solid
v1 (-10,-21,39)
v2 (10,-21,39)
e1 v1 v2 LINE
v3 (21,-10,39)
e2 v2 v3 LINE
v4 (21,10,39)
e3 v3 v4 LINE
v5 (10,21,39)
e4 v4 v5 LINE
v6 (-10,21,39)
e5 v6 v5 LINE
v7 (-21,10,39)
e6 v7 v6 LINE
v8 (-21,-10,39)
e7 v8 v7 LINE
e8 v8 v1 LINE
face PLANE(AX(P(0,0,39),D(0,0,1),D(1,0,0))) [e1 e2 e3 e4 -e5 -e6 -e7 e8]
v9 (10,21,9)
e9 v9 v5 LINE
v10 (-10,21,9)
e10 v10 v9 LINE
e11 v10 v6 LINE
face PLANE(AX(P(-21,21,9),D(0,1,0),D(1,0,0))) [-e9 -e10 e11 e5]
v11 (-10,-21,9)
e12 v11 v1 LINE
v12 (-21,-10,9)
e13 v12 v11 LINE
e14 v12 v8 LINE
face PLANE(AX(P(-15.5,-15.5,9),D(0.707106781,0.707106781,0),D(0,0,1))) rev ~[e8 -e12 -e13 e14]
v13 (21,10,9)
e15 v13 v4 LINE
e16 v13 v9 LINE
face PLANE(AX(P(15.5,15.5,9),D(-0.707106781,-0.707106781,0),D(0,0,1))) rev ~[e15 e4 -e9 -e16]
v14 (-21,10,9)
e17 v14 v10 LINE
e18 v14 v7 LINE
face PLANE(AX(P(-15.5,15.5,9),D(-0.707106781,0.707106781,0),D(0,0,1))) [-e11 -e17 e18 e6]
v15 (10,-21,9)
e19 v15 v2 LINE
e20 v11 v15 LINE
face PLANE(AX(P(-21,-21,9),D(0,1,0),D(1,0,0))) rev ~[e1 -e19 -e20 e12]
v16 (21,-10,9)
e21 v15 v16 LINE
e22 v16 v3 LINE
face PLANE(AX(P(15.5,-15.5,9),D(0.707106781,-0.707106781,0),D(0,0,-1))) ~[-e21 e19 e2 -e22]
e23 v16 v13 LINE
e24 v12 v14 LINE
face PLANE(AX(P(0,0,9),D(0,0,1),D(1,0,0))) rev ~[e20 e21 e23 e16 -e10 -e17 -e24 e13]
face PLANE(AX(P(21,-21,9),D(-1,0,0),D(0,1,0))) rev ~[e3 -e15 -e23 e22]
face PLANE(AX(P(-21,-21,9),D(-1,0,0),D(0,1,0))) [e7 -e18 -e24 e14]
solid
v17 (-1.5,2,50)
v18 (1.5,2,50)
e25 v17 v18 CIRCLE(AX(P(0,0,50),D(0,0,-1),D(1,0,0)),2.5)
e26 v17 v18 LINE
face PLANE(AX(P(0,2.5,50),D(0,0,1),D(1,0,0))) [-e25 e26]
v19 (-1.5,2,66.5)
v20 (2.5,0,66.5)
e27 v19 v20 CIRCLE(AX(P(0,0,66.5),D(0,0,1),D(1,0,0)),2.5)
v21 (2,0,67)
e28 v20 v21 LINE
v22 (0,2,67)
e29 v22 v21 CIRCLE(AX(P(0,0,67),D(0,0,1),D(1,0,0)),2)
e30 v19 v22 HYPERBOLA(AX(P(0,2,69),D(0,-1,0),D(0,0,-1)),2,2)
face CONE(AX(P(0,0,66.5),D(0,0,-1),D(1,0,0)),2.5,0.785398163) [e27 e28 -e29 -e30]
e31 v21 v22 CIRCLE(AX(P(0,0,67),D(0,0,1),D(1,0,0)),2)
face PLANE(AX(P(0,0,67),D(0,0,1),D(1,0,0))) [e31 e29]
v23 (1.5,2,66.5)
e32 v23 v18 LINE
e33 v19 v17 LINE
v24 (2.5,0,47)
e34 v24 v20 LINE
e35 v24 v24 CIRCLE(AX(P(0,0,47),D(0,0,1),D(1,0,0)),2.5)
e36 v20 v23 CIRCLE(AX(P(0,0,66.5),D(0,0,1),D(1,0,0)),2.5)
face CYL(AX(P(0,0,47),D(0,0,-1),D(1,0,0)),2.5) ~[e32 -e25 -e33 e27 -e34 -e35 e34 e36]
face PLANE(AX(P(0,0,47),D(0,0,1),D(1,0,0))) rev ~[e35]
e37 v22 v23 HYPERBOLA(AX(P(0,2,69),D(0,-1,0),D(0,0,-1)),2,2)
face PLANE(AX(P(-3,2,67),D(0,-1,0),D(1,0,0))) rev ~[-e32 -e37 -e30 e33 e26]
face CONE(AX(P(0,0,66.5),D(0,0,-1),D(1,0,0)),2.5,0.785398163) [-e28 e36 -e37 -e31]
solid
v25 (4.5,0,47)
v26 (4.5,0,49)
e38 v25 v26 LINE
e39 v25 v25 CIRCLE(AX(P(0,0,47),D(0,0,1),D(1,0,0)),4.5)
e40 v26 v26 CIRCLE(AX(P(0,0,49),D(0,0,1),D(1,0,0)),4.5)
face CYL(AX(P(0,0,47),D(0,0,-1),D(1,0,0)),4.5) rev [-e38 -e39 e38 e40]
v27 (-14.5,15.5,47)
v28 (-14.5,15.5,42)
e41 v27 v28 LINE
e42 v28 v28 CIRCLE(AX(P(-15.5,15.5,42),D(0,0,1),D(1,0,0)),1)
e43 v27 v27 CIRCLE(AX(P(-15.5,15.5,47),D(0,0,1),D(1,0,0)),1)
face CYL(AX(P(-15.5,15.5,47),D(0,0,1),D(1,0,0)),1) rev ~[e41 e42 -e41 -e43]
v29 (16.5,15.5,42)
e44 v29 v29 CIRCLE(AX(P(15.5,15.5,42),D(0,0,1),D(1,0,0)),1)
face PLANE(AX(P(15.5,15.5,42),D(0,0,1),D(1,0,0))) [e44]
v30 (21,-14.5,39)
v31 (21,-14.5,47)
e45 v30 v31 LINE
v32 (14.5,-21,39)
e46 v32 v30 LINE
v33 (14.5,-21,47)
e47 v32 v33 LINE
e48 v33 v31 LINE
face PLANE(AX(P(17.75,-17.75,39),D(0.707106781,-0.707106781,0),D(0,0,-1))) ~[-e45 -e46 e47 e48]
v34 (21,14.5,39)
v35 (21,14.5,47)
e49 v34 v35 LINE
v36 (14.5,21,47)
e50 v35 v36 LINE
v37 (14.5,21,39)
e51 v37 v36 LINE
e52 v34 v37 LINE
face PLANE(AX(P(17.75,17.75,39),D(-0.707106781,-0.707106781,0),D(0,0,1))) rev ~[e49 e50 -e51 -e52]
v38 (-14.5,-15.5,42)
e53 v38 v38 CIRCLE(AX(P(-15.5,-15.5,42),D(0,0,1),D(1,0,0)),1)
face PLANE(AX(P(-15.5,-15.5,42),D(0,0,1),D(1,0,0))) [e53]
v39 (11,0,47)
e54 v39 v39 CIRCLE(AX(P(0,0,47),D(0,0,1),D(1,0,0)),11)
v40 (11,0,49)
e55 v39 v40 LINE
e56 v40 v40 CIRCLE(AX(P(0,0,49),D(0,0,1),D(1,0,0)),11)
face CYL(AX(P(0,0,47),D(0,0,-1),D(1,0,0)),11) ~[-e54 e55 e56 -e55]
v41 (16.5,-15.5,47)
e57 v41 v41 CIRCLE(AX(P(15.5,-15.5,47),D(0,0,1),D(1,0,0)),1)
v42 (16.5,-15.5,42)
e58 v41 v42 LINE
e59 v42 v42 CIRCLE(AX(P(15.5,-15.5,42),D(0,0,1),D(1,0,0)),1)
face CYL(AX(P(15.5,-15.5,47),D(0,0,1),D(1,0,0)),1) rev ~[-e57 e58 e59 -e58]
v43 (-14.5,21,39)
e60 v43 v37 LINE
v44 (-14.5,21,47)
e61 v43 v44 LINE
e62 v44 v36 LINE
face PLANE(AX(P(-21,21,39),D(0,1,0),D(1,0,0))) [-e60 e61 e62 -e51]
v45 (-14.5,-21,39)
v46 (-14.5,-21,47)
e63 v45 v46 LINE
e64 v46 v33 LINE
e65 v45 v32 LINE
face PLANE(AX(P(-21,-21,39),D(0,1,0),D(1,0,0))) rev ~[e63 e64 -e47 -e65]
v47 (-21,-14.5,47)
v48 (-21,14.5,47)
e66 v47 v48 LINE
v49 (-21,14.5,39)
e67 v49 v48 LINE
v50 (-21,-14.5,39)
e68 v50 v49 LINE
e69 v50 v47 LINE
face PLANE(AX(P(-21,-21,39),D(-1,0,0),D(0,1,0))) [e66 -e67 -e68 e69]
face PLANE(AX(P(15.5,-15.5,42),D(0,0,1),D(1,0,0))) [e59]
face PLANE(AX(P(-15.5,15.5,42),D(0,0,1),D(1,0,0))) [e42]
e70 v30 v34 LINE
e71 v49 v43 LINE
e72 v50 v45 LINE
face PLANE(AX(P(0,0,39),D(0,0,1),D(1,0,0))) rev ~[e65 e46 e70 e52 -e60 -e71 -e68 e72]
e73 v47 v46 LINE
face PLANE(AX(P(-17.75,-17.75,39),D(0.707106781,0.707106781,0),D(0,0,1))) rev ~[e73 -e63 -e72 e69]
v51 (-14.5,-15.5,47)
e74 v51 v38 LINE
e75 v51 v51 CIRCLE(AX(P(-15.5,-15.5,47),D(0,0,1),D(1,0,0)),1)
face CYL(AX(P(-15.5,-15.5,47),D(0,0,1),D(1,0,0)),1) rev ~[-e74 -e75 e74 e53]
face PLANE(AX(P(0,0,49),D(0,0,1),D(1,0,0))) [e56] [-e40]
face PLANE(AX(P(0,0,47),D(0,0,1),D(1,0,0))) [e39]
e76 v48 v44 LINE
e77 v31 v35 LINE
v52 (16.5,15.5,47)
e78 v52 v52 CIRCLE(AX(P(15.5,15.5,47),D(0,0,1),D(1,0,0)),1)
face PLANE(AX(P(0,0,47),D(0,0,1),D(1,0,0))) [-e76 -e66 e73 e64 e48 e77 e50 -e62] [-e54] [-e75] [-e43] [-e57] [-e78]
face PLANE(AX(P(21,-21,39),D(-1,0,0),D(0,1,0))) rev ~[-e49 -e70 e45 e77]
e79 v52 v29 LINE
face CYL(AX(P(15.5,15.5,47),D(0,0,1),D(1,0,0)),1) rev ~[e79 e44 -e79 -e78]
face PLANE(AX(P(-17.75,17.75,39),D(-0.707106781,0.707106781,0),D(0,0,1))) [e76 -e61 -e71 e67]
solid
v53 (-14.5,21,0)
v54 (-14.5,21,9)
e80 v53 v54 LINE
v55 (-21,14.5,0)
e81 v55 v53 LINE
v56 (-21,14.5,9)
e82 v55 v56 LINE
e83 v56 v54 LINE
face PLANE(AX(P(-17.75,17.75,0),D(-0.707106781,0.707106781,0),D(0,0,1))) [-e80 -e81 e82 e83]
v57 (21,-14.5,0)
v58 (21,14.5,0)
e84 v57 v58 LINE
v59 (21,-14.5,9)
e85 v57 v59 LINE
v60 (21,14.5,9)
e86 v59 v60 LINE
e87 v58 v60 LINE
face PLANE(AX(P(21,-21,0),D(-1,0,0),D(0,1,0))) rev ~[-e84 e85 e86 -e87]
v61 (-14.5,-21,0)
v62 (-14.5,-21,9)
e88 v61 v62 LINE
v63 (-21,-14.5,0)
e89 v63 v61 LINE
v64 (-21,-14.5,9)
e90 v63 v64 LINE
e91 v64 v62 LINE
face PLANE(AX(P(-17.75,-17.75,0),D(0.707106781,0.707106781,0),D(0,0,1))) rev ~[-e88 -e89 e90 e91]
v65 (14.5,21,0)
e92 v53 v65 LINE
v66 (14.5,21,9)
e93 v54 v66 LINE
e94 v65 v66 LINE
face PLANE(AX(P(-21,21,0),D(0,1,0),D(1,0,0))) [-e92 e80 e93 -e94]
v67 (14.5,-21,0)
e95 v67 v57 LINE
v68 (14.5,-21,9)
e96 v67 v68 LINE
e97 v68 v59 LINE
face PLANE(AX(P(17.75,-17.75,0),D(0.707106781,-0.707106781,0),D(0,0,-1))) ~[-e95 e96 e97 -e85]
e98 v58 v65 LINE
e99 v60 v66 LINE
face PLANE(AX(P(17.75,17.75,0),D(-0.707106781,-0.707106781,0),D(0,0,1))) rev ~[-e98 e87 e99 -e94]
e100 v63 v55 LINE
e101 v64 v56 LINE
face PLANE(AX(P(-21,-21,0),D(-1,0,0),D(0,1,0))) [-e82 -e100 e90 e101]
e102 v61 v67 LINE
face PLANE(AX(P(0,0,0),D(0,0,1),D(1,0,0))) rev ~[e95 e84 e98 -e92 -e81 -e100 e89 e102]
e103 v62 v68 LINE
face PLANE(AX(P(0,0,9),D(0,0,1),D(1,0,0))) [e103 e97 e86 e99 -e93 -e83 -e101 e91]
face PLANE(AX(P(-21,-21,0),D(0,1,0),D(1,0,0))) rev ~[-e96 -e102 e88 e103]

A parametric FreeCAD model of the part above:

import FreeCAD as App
import Part
import Sketcher

V = App.Vector


def edges_at(feature, points):
    """Names of the edges that pass closest to the given points."""
    edges = feature.Shape.Edges
    near = lambda p: min(range(len(edges)), key=lambda i: edges[i].distToShape(Part.Vertex(*p))[0])
    return sorted({f"Edge{near(p) + 1}" for p in points})

doc = App.newDocument("Part")
body = doc.addObject("PartDesign::Body", "Body")

# Sketch on XY plane
sketch1 = body.newObject("Sketcher::SketchObject", "Sketch")
sketch1.AttachmentSupport = (doc.getObject("XY_Plane"), [""])
sketch1.MapMode = "FlatFace"
sketch1.addGeometry([
    Part.LineSegment(V(-21, 21, 0), V(-21, -21, 0)),
    Part.LineSegment(V(-21, -21, 0), V(21, -21, 0)),
    Part.LineSegment(V(21, -21, 0), V(21, 21, 0)),
    Part.LineSegment(V(21, 21, 0), V(-21, 21, 0)),
], False)
sketch1.addConstraint([
    Sketcher.Constraint("Coincident", 0, 2, 1, 1),
    Sketcher.Constraint("Coincident", 1, 2, 2, 1),
    Sketcher.Constraint("Coincident", 2, 2, 3, 1),
    Sketcher.Constraint("Coincident", 3, 2, 0, 1),
    Sketcher.Constraint("Vertical", 0),
    Sketcher.Constraint("Horizontal", 1),
    Sketcher.Constraint("Vertical", 2),
    Sketcher.Constraint("Horizontal", 3),
    Sketcher.Constraint("Symmetric", 0, 2, 2, 2, -1, 1),
    Sketcher.Constraint("Equal", 3, 0),
    Sketcher.Constraint("DistanceX", 1, 1, 1, 2, 42.0),
])
pad1 = body.newObject("PartDesign::Pad", "Pad")
pad1.Profile = sketch1
pad1.Length = 9
doc.recompute()

chamfer = body.newObject("PartDesign::Chamfer", "Chamfer")
chamfer.Base = (pad1, edges_at(pad1, [
    (-21, -21, 4.5),
    (21, -21, 4.5),
    (21, 21, 4.5),
    (-21, 21, 4.5),
]))
chamfer.Size = 6.5

# Sketch on XY plane
sketch2 = body.newObject("Sketcher::SketchObject", "Sketch001")
sketch2.AttachmentSupport = (doc.getObject("XY_Plane"), [""])
sketch2.MapMode = "FlatFace"
sketch2.AttachmentOffset = App.Placement(V(0, 0, 67), App.Rotation())
sketch2.addGeometry([
    Part.LineSegment(V(-3, 3, 0), V(-3, 2, 0)),
    Part.LineSegment(V(-3, 2, 0), V(3, 2, 0)),
    Part.LineSegment(V(3, 2, 0), V(3, 3, 0)),
    Part.LineSegment(V(3, 3, 0), V(-3, 3, 0)),
], False)
sketch2.addConstraint([
    Sketcher.Constraint("Coincident", 0, 2, 1, 1),
    Sketcher.Constraint("Coincident", 1, 2, 2, 1),
    Sketcher.Constraint("Coincident", 2, 2, 3, 1),
    Sketcher.Constraint("Coincident", 3, 2, 0, 1),
    Sketcher.Constraint("Vertical", 0),
    Sketcher.Constraint("Horizontal", 1),
    Sketcher.Constraint("Vertical", 2),
    Sketcher.Constraint("Horizontal", 3),
    Sketcher.Constraint("DistanceX", 1, 1, 1, 2, 6.0),
    Sketcher.Constraint("DistanceY", 0, 2, 0, 1, 1.0),
    Sketcher.Constraint("DistanceX", 0, 2, -1, 1, 3.0),
    Sketcher.Constraint("DistanceY", -1, 1, 0, 2, 2.0),
])
pocket1 = body.newObject("PartDesign::Pocket", "Pocket")
pocket1.Profile = sketch2
pocket1.Length = 18
pocket1.Reversed = True
body2 = doc.addObject("PartDesign::Body", "Body001")

# Sketch on XY plane
sketch3 = body2.newObject("Sketcher::SketchObject", "Sketch002")
sketch3.AttachmentSupport = (doc.getObject("XY_Plane001"), [""])
sketch3.MapMode = "FlatFace"
sketch3.AttachmentOffset = App.Placement(V(0, 0, 9), App.Rotation())
sketch3.addGeometry([
    Part.LineSegment(V(-21, 21, 0), V(-21, -21, 0)),
    Part.LineSegment(V(-21, -21, 0), V(21, -21, 0)),
    Part.LineSegment(V(21, -21, 0), V(21, 21, 0)),
    Part.LineSegment(V(21, 21, 0), V(-21, 21, 0)),
], False)
sketch3.addConstraint([
    Sketcher.Constraint("Coincident", 0, 2, 1, 1),
    Sketcher.Constraint("Coincident", 1, 2, 2, 1),
    Sketcher.Constraint("Coincident", 2, 2, 3, 1),
    Sketcher.Constraint("Coincident", 3, 2, 0, 1),
    Sketcher.Constraint("Vertical", 0),
    Sketcher.Constraint("Horizontal", 1),
    Sketcher.Constraint("Vertical", 2),
    Sketcher.Constraint("Horizontal", 3),
    Sketcher.Constraint("Symmetric", 0, 2, 2, 2, -1, 1),
    Sketcher.Constraint("Equal", 3, 0),
    Sketcher.Constraint("DistanceX", 1, 1, 1, 2, 42.0),
])
pad2 = body2.newObject("PartDesign::Pad", "Pad001")
pad2.Profile = sketch3
pad2.Length = 30
doc.recompute()

chamfer2 = body2.newObject("PartDesign::Chamfer", "Chamfer001")
chamfer2.Base = (pad2, edges_at(pad2, [
    (21, 21, 24),
    (-21, 21, 24),
    (-21, -21, 24),
    (21, -21, 24),
]))
chamfer2.Size = 11
body3 = doc.addObject("PartDesign::Body", "Body002")

# Sketch on XY plane
sketch4 = body3.newObject("Sketcher::SketchObject", "Sketch003")
sketch4.AttachmentSupport = (doc.getObject("XY_Plane002"), [""])
sketch4.MapMode = "FlatFace"
sketch4.AttachmentOffset = App.Placement(V(0, 0, 39), App.Rotation())
sketch4.addGeometry([
    Part.LineSegment(V(-21, 21, 0), V(-21, -21, 0)),
    Part.LineSegment(V(-21, -21, 0), V(21, -21, 0)),
    Part.LineSegment(V(21, -21, 0), V(21, 21, 0)),
    Part.LineSegment(V(21, 21, 0), V(-21, 21, 0)),
], False)
sketch4.addConstraint([
    Sketcher.Constraint("Coincident", 0, 2, 1, 1),
    Sketcher.Constraint("Coincident", 1, 2, 2, 1),
    Sketcher.Constraint("Coincident", 2, 2, 3, 1),
    Sketcher.Constraint("Coincident", 3, 2, 0, 1),
    Sketcher.Constraint("Vertical", 0),
    Sketcher.Constraint("Horizontal", 1),
    Sketcher.Constraint("Vertical", 2),
    Sketcher.Constraint("Horizontal", 3),
    Sketcher.Constraint("Symmetric", 0, 2, 2, 2, -1, 1),
    Sketcher.Constraint("Equal", 3, 0),
    Sketcher.Constraint("DistanceX", 1, 1, 1, 2, 42.0),
])
pad3 = body3.newObject("PartDesign::Pad", "Pad002")
pad3.Profile = sketch4
pad3.Length = 8
doc.recompute()

chamfer3 = body3.newObject("PartDesign::Chamfer", "Chamfer002")
chamfer3.Base = (pad3, edges_at(pad3, [
    (-21, -21, 43),
    (21, -21, 43),
    (21, 21, 43),
    (-21, 21, 43),
]))
chamfer3.Size = 6.5

# Sketch on XY plane
sketch5 = body3.newObject("Sketcher::SketchObject", "Sketch004")
sketch5.AttachmentSupport = (doc.getObject("XY_Plane002"), [""])
sketch5.MapMode = "FlatFace"
sketch5.AttachmentOffset = App.Placement(V(0, 0, 47), App.Rotation())
sketch5.addGeometry([
    Part.Circle(V(0, 0, 0), V(0, 0, 1), 11),
    Part.Circle(V(0, 0, 0), V(0, 0, 1), 4.5),
], False)
sketch5.addConstraint([
    Sketcher.Constraint("Coincident", 0, 3, -1, 1),
    Sketcher.Constraint("Coincident", 1, 3, -1, 1),
    Sketcher.Constraint("Diameter", 0, 22.0),
    Sketcher.Constraint("Diameter", 1, 9.0),
])
pad4 = body3.newObject("PartDesign::Pad", "Pad003")
pad4.Profile = sketch5
pad4.Length = 2

# Sketch on XY plane
sketch6 = body3.newObject("Sketcher::SketchObject", "Sketch005")
sketch6.AttachmentSupport = (doc.getObject("XY_Plane002"), [""])
sketch6.MapMode = "FlatFace"
sketch6.AttachmentOffset = App.Placement(V(0, 0, 47), App.Rotation())
sketch6.addGeometry([
    Part.Circle(V(-15.5, 15.5, 0), V(0, 0, 1), 1),
    Part.Circle(V(15.5, 15.5, 0), V(0, 0, 1), 1),
    Part.Circle(V(-15.5, -15.5, 0), V(0, 0, 1), 1),
    Part.Circle(V(15.5, -15.5, 0), V(0, 0, 1), 1),
], False)
sketch6.addConstraint([
    Sketcher.Constraint("Equal", 0, 1),
    Sketcher.Constraint("Equal", 1, 2),
    Sketcher.Constraint("Equal", 2, 3),
    Sketcher.Constraint("Symmetric", 1, 3, 2, 3, -1, 1),
    Sketcher.Constraint("Symmetric", 0, 3, 3, 3, -1, 1),
    Sketcher.Constraint("Symmetric", 0, 3, 1, 3, -2),
    Sketcher.Constraint("Diameter", 0, 2.0),
    Sketcher.Constraint("DistanceX", 0, 3, 1, 3, 31.0),
    Sketcher.Constraint("DistanceY", 2, 3, 0, 3, 31.0),
])
pocket2 = body3.newObject("PartDesign::Pocket", "Pocket001")
pocket2.Profile = sketch6
pocket2.Length = 5
body4 = doc.addObject("PartDesign::Body", "Body003")

# Sketch on XY plane
sketch7 = body4.newObject("Sketcher::SketchObject", "Sketch006")
sketch7.AttachmentSupport = (doc.getObject("XY_Plane003"), [""])
sketch7.MapMode = "FlatFace"
sketch7.AttachmentOffset = App.Placement(V(0, 0, 47), App.Rotation())
sketch7.addGeometry(Part.Circle(V(0, 0, 0), V(0, 0, 1), 2.5), False)
sketch7.addConstraint([
    Sketcher.Constraint("Coincident", 0, 3, -1, 1),
    Sketcher.Constraint("Diameter", 0, 5.0),
])
pad5 = body4.newObject("PartDesign::Pad", "Pad004")
pad5.Profile = sketch7
pad5.Length = 20
doc.recompute()

chamfer4 = body4.newObject("PartDesign::Chamfer", "Chamfer003")
chamfer4.Base = (pad5, edges_at(pad5, [(-2.5, 0, 67)]))
chamfer4.Size = 0.5

# Sketch on XY plane
sketch8 = body4.newObject("Sketcher::SketchObject", "Sketch007")
sketch8.AttachmentSupport = (doc.getObject("XY_Plane003"), [""])
sketch8.MapMode = "FlatFace"
sketch8.AttachmentOffset = App.Placement(V(0, 0, 67), App.Rotation())
sketch8.addGeometry([
    Part.LineSegment(V(-3, 3, 0), V(-3, 2, 0)),
    Part.LineSegment(V(-3, 2, 0), V(3, 2, 0)),
    Part.LineSegment(V(3, 2, 0), V(3, 3, 0)),
    Part.LineSegment(V(3, 3, 0), V(-3, 3, 0)),
], False)
sketch8.addConstraint([
    Sketcher.Constraint("Coincident", 0, 2, 1, 1),
    Sketcher.Constraint("Coincident", 1, 2, 2, 1),
    Sketcher.Constraint("Coincident", 2, 2, 3, 1),
    Sketcher.Constraint("Coincident", 3, 2, 0, 1),
    Sketcher.Constraint("Vertical", 0),
    Sketcher.Constraint("Horizontal", 1),
    Sketcher.Constraint("Vertical", 2),
    Sketcher.Constraint("Horizontal", 3),
    Sketcher.Constraint("DistanceX", 1, 1, 1, 2, 6.0),
    Sketcher.Constraint("DistanceY", 0, 2, 0, 1, 1.0),
    Sketcher.Constraint("DistanceX", 0, 2, -1, 1, 3.0),
    Sketcher.Constraint("DistanceY", -1, 1, 0, 2, 2.0),
])
pocket3 = body4.newObject("PartDesign::Pocket", "Pocket002")
pocket3.Profile = sketch8
pocket3.Length = 17

doc.recompute()
